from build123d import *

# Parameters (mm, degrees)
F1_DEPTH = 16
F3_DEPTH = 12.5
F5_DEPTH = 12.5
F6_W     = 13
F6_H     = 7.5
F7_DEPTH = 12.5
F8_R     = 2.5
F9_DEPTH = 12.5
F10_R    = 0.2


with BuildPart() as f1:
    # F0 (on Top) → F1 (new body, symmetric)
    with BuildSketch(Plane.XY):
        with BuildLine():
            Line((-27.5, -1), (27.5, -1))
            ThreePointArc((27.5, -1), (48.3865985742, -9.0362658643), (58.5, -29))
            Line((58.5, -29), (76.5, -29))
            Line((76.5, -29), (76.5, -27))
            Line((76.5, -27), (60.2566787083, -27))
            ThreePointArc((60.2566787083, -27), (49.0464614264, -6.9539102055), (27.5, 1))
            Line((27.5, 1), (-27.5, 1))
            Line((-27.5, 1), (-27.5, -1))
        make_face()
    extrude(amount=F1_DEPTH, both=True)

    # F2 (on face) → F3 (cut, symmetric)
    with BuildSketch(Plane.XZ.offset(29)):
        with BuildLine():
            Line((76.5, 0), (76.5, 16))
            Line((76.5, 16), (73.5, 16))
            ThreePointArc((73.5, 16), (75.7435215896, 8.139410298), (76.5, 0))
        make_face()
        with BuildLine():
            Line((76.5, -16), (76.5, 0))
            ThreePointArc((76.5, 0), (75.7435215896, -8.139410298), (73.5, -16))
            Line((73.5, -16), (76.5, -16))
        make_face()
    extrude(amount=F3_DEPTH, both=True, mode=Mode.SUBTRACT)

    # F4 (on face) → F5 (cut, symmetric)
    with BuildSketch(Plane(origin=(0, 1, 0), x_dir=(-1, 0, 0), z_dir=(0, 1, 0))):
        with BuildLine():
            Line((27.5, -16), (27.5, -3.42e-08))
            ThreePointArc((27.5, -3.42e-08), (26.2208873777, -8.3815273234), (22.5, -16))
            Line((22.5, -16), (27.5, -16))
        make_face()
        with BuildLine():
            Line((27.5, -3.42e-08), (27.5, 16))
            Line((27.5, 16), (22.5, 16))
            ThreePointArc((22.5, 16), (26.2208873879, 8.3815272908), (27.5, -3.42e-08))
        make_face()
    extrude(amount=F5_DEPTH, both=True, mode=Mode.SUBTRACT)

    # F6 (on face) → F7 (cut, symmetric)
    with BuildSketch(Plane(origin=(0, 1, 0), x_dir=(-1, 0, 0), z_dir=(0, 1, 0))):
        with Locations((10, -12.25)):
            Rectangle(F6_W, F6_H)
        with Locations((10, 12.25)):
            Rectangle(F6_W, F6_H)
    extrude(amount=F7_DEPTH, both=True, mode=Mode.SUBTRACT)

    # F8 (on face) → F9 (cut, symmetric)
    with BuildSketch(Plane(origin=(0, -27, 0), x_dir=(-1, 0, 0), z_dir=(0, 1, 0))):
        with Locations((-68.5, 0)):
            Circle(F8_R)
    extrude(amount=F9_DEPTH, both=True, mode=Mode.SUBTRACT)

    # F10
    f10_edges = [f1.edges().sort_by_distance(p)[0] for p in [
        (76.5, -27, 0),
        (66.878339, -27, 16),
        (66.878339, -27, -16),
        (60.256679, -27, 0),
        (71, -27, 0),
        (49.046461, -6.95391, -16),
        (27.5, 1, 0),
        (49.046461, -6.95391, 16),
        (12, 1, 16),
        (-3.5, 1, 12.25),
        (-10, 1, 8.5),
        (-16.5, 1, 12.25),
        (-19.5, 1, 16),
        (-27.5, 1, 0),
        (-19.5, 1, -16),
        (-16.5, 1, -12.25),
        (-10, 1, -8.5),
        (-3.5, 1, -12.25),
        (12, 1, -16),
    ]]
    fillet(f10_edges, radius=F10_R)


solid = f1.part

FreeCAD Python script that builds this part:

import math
import FreeCAD as App
import Part
import Sketcher


def edges_at(feature, points):
    """Names of the edges that pass closest to the given points."""
    edges = feature.Shape.Edges
    near = lambda p: min(range(len(edges)), key=lambda i: edges[i].distToShape(Part.Vertex(*p))[0])
    return sorted({f"Edge{near(p) + 1}" for p in points})

doc = App.newDocument("Part")
body = doc.addObject("PartDesign::Body", "Body")

# Sketch on XY plane
sketch1 = body.newObject("Sketcher::SketchObject", "Sketch")
sketch1.AttachmentSupport = (doc.getObject("XY_Plane"), [""])
sketch1.MapMode = "FlatFace"
sketch1.addGeometry(Part.LineSegment(App.Vector(-27.5, -1, 0), App.Vector(27.5, -1, 0)), False)
sketch1.addGeometry(Part.ArcOfCircle(Part.Circle(App.Vector(27.5, -32.2, 0), App.Vector(0, 0, 1), 31.2), math.radians(6), math.radians(90)), False)
sketch1.addGeometry(Part.LineSegment(App.Vector(58.5, -29, 0), App.Vector(76.5, -29, 0)), False)
sketch1.addGeometry(Part.LineSegment(App.Vector(76.5, -29, 0), App.Vector(76.5, -27, 0)), False)
sketch1.addGeometry(Part.LineSegment(App.Vector(76.5, -27, 0), App.Vector(60.3, -27, 0)), False)
sketch1.addGeometry(Part.ArcOfCircle(Part.Circle(App.Vector(27.5, -32.2, 0), App.Vector(0, 0, 1), 33.2), math.radians(9), math.radians(90)), False)
sketch1.addGeometry(Part.LineSegment(App.Vector(27.5, 1, 0), App.Vector(-27.5, 1, 0)), False)
sketch1.addGeometry(Part.LineSegment(App.Vector(-27.5, 1, 0), App.Vector(-27.5, -1, 0)), False)
sketch1.addConstraint(Sketcher.Constraint("Tangent", 0, 2, 1, 2))
sketch1.addConstraint(Sketcher.Constraint("Coincident", 1, 1, 2, 1))
sketch1.addConstraint(Sketcher.Constraint("Coincident", 2, 2, 3, 1))
sketch1.addConstraint(Sketcher.Constraint("Coincident", 3, 2, 4, 1))
sketch1.addConstraint(Sketcher.Constraint("Coincident", 4, 2, 5, 1))
sketch1.addConstraint(Sketcher.Constraint("Tangent", 5, 2, 6, 1))
sketch1.addConstraint(Sketcher.Constraint("Coincident", 6, 2, 7, 1))
sketch1.addConstraint(Sketcher.Constraint("Coincident", 7, 2, 0, 1))
sketch1.addConstraint(Sketcher.Constraint("Horizontal", 0))
sketch1.addConstraint(Sketcher.Constraint("Horizontal", 2))
sketch1.addConstraint(Sketcher.Constraint("Vertical", 3))
sketch1.addConstraint(Sketcher.Constraint("Horizontal", 4))
sketch1.addConstraint(Sketcher.Constraint("Horizontal", 6))
sketch1.addConstraint(Sketcher.Constraint("Vertical", 7))
sketch1.addConstraint(Sketcher.Constraint("Coincident", 5, 3, 1, 3))
sketch1.addConstraint(Sketcher.Constraint("Symmetric", 0, 2, 6, 2, -1, 1))
sketch1.addConstraint(Sketcher.Constraint("Equal", 3, 7))
sketch1.addConstraint(Sketcher.Constraint("DistanceX", 0, 1, 0, 2, 55.0))
sketch1.addConstraint(Sketcher.Constraint("DistanceX", 2, 1, 2, 2, 18.0))
sketch1.addConstraint(Sketcher.Constraint("DistanceY", 3, 1, 3, 2, 2.0))
sketch1.addConstraint(Sketcher.Constraint("DistanceY", 1, 1, -1, 1, 29.0))
sketch1.addConstraint(Sketcher.Constraint("DistanceX", 1, 3, 1, 1, 31.0))
pad1 = body.newObject("PartDesign::Pad", "Pad")
pad1.Profile = sketch1
pad1.Length = 32
pad1.Midplane = True

# Sketch on XZ plane
sketch2 = body.newObject("Sketcher::SketchObject", "Sketch001")
sketch2.AttachmentSupport = (doc.getObject("XZ_Plane"), [""])
sketch2.MapMode = "FlatFace"
sketch2.AttachmentOffset = App.Placement(App.Vector(0, 0, 29), App.Rotation())
sketch2.addGeometry(Part.LineSegment(App.Vector(76.5, 0, 0), App.Vector(76.5, 16, 0)), False)
sketch2.addGeometry(Part.LineSegment(App.Vector(76.5, 16, 0), App.Vector(73.5, 16, 0)), False)
sketch2.addGeometry(Part.ArcOfCircle(Part.Circle(App.Vector(32.3, 0, 0), App.Vector(0, 0, 1), 44.2), math.radians(0), math.radians(21)), False)
sketch2.addGeometry(Part.LineSegment(App.Vector(76.5, -16, 0), App.Vector(76.5, 0, 0)), False)
sketch2.addGeometry(Part.ArcOfCircle(Part.Circle(App.Vector(32.3, 0, 0), App.Vector(0, 0, 1), 44.2), math.radians(-21), math.radians(0)), False)
sketch2.addGeometry(Part.LineSegment(App.Vector(73.5, -16, 0), App.Vector(76.5, -16, 0)), False)
sketch2.addConstraint(Sketcher.Constraint("Coincident", 0, 2, 1, 1))
sketch2.addConstraint(Sketcher.Constraint("Coincident", 1, 2, 2, 2))
sketch2.addConstraint(Sketcher.Constraint("Tangent", 2, 1, 0, 1))
sketch2.addConstraint(Sketcher.Constraint("Tangent", 3, 2, 4, 2))
sketch2.addConstraint(Sketcher.Constraint("Coincident", 4, 1, 5, 1))
sketch2.addConstraint(Sketcher.Constraint("Coincident", 5, 2, 3, 1))
sketch2.addConstraint(Sketcher.Constraint("Vertical", 0))
sketch2.addConstraint(Sketcher.Constraint("Horizontal", 1))
sketch2.addConstraint(Sketcher.Constraint("Vertical", 3))
sketch2.addConstraint(Sketcher.Constraint("Horizontal", 5))
sketch2.addConstraint(Sketcher.Constraint("Coincident", 4, 3, 2, 3))
sketch2.addConstraint(Sketcher.Constraint("Equal", 2, 4))
sketch2.addConstraint(Sketcher.Constraint("Symmetric", 1, 2, 4, 1, -1))
sketch2.addConstraint(Sketcher.Constraint("DistanceX", 1, 2, 1, 1, 3.0))
sketch2.addConstraint(Sketcher.Constraint("DistanceY", 0, 1, 0, 2, 16.0))
sketch2.addConstraint(Sketcher.Constraint("DistanceX", -1, 1, 0, 2, 76.5))
pocket1 = body.newObject("PartDesign::Pocket", "Pocket")
pocket1.Profile = sketch2
pocket1.Length = 25
pocket1.Midplane = True

# Sketch on XZ plane
sketch3 = body.newObject("Sketcher::SketchObject", "Sketch002")
sketch3.AttachmentSupport = (doc.getObject("XZ_Plane"), [""])
sketch3.MapMode = "FlatFace"
sketch3.AttachmentOffset = App.Placement(App.Vector(0, 0, -1), App.Rotation())
sketch3.addGeometry(Part.LineSegment(App.Vector(-28, -16, 0), App.Vector(-28, 0, 0)), False)
sketch3.addGeometry(Part.ArcOfCircle(Part.Circle(App.Vector(1, 0, 0), App.Vector(0, 0, 1), 28), math.radians(-180), math.radians(-145)), False)
sketch3.addGeometry(Part.LineSegment(App.Vector(-22, -16, 0), App.Vector(-28, -16, 0)), False)
sketch3.addGeometry(Part.LineSegment(App.Vector(-28, 0, 0), App.Vector(-28, 16, 0)), False)
sketch3.addGeometry(Part.LineSegment(App.Vector(-28, 16, 0), App.Vector(-22, 16, 0)), False)
sketch3.addGeometry(Part.ArcOfCircle(Part.Circle(App.Vector(1, 0, 0), App.Vector(0, 0, 1), 28), math.radians(145), math.radians(180)), False)
sketch3.addConstraint(Sketcher.Constraint("Tangent", 0, 2, 1, 1))
sketch3.addConstraint(Sketcher.Constraint("Coincident", 1, 2, 2, 1))
sketch3.addConstraint(Sketcher.Constraint("Coincident", 2, 2, 0, 1))
sketch3.addConstraint(Sketcher.Constraint("Coincident", 3, 2, 4, 1))
sketch3.addConstraint(Sketcher.Constraint("Coincident", 4, 2, 5, 1))
sketch3.addConstraint(Sketcher.Constraint("Tangent", 5, 2, 3, 1))
sketch3.addConstraint(Sketcher.Constraint("Vertical", 0))
sketch3.addConstraint(Sketcher.Constraint("Horizontal", 2))
sketch3.addConstraint(Sketcher.Constraint("Vertical", 3))
sketch3.addConstraint(Sketcher.Constraint("Horizontal", 4))
sketch3.addConstraint(Sketcher.Constraint("Coincident", 5, 3, 1, 3))
sketch3.addConstraint(Sketcher.Constraint("Equal", 1, 5))
sketch3.addConstraint(Sketcher.Constraint("Symmetric", 1, 2, 4, 2, -1))
sketch3.addConstraint(Sketcher.Constraint("Radius", 1, 28.1))
sketch3.addConstraint(Sketcher.Constraint("DistanceX", 2, 2, 2, 1, 5.0))
sketch3.addConstraint(Sketcher.Constraint("DistanceX", -1, 1, 1, 3, 0.6))
pocket2 = body.newObject("PartDesign::Pocket", "Pocket001")
pocket2.Profile = sketch3
pocket2.Length = 25
pocket2.Midplane = True

# Sketch on XZ plane
sketch4 = body.newObject("Sketcher::SketchObject", "Sketch003")
sketch4.AttachmentSupport = (doc.getObject("XZ_Plane"), [""])
sketch4.MapMode = "FlatFace"
sketch4.AttachmentOffset = App.Placement(App.Vector(0, 0, -1), App.Rotation())
sketch4.addGeometry(Part.LineSegment(App.Vector(-4, -8, 0), App.Vector(-4, -16, 0)), False)
sketch4.addGeometry(Part.LineSegment(App.Vector(-4, -16, 0), App.Vector(-16, -16, 0)), False)
sketch4.addGeometry(Part.LineSegment(App.Vector(-16, -16, 0), App.Vector(-16, -8, 0)), False)
sketch4.addGeometry(Part.LineSegment(App.Vector(-16, -8, 0), App.Vector(-4, -8, 0)), False)
sketch4.addGeometry(Part.LineSegment(App.Vector(-4, 16, 0), App.Vector(-4, 8, 0)), False)
sketch4.addGeometry(Part.LineSegment(App.Vector(-4, 8, 0), App.Vector(-16, 8, 0)), False)
sketch4.addGeometry(Part.LineSegment(App.Vector(-16, 8, 0), App.Vector(-16, 16, 0)), False)
sketch4.addGeometry(Part.LineSegment(App.Vector(-16, 16, 0), App.Vector(-4, 16, 0)), False)
sketch4.addConstraint(Sketcher.Constraint("Coincident", 0, 2, 1, 1))
sketch4.addConstraint(Sketcher.Constraint("Coincident", 1, 2, 2, 1))
sketch4.addConstraint(Sketcher.Constraint("Coincident", 2, 2, 3, 1))
sketch4.addConstraint(Sketcher.Constraint("Coincident", 3, 2, 0, 1))
sketch4.addConstraint(Sketcher.Constraint("Coincident", 4, 2, 5, 1))
sketch4.addConstraint(Sketcher.Constraint("Coincident", 5, 2, 6, 1))
sketch4.addConstraint(Sketcher.Constraint("Coincident", 6, 2, 7, 1))
sketch4.addConstraint(Sketcher.Constraint("Coincident", 7, 2, 4, 1))
sketch4.addConstraint(Sketcher.Constraint("Vertical", 0))
sketch4.addConstraint(Sketcher.Constraint("Horizontal", 1))
sketch4.addConstraint(Sketcher.Constraint("Vertical", 2))
sketch4.addConstraint(Sketcher.Constraint("Horizontal", 3))
sketch4.addConstraint(Sketcher.Constraint("Vertical", 4))
sketch4.addConstraint(Sketcher.Constraint("Horizontal", 5))
sketch4.addConstraint(Sketcher.Constraint("Vertical", 6))
sketch4.addConstraint(Sketcher.Constraint("Horizontal", 7))
sketch4.addConstraint(Sketcher.Constraint("Symmetric", 3, 2, 4, 2, -1))
sketch4.addConstraint(Sketcher.Constraint("Symmetric", 1, 2, 6, 2, -1))
sketch4.addConstraint(Sketcher.Constraint("DistanceX", 1, 2, 1, 1, 13.0))
sketch4.addConstraint(Sketcher.Constraint("DistanceY", 0, 2, 0, 1, 7.5))
sketch4.addConstraint(Sketcher.Constraint("DistanceY", 0, 2, -1, 1, 16.0))
sketch4.addConstraint(Sketcher.Constraint("DistanceX", 0, 2, -1, 1, 3.5))
pocket3 = body.newObject("PartDesign::Pocket", "Pocket002")
pocket3.Profile = sketch4
pocket3.Length = 25
pocket3.Midplane = True

# Sketch on XZ plane
sketch5 = body.newObject("Sketcher::SketchObject", "Sketch004")
sketch5.AttachmentSupport = (doc.getObject("XZ_Plane"), [""])
sketch5.MapMode = "FlatFace"
sketch5.AttachmentOffset = App.Placement(App.Vector(0, 0, 27), App.Rotation())
sketch5.addGeometry(Part.Circle(App.Vector(68.5, 0, 0), App.Vector(0, 0, 1), 2.5), False)
sketch5.addConstraint(Sketcher.Constraint("PointOnObject", 0, 3, -1))
sketch5.addConstraint(Sketcher.Constraint("Diameter", 0, 5.0))
sketch5.addConstraint(Sketcher.Constraint("DistanceX", -1, 1, 0, 3, 68.5))
pocket4 = body.newObject("PartDesign::Pocket", "Pocket003")
pocket4.Profile = sketch5
pocket4.Length = 25
pocket4.Midplane = True
doc.recompute()

fillet = body.newObject("PartDesign::Fillet", "Fillet")
fillet.Base = (pocket4, edges_at(pocket4, [
    (75.744, -27, 8.139),
    (66.878, -27, 16),
    (66.878, -27, -16),
    (60.257, -27, 0),
    (71, -27, 0),
    (49.046, -6.954, -16),
    (27.5, 1, 0),
    (49.046, -6.954, 16),
    (12, 1, 16),
    (-3.5, 1, 12.25),
    (-10, 1, 8.5),
    (-16.5, 1, 12.25),
    (-19.5, 1, 16),
    (-26.221, 1, -8.382),
    (-19.5, 1, -16),
    (-16.5, 1, -12.25),
    (-10, 1, -8.5),
    (-3.5, 1, -12.25),
    (12, 1, -16),
]))
fillet.Radius = 0.2

doc.recompute()
